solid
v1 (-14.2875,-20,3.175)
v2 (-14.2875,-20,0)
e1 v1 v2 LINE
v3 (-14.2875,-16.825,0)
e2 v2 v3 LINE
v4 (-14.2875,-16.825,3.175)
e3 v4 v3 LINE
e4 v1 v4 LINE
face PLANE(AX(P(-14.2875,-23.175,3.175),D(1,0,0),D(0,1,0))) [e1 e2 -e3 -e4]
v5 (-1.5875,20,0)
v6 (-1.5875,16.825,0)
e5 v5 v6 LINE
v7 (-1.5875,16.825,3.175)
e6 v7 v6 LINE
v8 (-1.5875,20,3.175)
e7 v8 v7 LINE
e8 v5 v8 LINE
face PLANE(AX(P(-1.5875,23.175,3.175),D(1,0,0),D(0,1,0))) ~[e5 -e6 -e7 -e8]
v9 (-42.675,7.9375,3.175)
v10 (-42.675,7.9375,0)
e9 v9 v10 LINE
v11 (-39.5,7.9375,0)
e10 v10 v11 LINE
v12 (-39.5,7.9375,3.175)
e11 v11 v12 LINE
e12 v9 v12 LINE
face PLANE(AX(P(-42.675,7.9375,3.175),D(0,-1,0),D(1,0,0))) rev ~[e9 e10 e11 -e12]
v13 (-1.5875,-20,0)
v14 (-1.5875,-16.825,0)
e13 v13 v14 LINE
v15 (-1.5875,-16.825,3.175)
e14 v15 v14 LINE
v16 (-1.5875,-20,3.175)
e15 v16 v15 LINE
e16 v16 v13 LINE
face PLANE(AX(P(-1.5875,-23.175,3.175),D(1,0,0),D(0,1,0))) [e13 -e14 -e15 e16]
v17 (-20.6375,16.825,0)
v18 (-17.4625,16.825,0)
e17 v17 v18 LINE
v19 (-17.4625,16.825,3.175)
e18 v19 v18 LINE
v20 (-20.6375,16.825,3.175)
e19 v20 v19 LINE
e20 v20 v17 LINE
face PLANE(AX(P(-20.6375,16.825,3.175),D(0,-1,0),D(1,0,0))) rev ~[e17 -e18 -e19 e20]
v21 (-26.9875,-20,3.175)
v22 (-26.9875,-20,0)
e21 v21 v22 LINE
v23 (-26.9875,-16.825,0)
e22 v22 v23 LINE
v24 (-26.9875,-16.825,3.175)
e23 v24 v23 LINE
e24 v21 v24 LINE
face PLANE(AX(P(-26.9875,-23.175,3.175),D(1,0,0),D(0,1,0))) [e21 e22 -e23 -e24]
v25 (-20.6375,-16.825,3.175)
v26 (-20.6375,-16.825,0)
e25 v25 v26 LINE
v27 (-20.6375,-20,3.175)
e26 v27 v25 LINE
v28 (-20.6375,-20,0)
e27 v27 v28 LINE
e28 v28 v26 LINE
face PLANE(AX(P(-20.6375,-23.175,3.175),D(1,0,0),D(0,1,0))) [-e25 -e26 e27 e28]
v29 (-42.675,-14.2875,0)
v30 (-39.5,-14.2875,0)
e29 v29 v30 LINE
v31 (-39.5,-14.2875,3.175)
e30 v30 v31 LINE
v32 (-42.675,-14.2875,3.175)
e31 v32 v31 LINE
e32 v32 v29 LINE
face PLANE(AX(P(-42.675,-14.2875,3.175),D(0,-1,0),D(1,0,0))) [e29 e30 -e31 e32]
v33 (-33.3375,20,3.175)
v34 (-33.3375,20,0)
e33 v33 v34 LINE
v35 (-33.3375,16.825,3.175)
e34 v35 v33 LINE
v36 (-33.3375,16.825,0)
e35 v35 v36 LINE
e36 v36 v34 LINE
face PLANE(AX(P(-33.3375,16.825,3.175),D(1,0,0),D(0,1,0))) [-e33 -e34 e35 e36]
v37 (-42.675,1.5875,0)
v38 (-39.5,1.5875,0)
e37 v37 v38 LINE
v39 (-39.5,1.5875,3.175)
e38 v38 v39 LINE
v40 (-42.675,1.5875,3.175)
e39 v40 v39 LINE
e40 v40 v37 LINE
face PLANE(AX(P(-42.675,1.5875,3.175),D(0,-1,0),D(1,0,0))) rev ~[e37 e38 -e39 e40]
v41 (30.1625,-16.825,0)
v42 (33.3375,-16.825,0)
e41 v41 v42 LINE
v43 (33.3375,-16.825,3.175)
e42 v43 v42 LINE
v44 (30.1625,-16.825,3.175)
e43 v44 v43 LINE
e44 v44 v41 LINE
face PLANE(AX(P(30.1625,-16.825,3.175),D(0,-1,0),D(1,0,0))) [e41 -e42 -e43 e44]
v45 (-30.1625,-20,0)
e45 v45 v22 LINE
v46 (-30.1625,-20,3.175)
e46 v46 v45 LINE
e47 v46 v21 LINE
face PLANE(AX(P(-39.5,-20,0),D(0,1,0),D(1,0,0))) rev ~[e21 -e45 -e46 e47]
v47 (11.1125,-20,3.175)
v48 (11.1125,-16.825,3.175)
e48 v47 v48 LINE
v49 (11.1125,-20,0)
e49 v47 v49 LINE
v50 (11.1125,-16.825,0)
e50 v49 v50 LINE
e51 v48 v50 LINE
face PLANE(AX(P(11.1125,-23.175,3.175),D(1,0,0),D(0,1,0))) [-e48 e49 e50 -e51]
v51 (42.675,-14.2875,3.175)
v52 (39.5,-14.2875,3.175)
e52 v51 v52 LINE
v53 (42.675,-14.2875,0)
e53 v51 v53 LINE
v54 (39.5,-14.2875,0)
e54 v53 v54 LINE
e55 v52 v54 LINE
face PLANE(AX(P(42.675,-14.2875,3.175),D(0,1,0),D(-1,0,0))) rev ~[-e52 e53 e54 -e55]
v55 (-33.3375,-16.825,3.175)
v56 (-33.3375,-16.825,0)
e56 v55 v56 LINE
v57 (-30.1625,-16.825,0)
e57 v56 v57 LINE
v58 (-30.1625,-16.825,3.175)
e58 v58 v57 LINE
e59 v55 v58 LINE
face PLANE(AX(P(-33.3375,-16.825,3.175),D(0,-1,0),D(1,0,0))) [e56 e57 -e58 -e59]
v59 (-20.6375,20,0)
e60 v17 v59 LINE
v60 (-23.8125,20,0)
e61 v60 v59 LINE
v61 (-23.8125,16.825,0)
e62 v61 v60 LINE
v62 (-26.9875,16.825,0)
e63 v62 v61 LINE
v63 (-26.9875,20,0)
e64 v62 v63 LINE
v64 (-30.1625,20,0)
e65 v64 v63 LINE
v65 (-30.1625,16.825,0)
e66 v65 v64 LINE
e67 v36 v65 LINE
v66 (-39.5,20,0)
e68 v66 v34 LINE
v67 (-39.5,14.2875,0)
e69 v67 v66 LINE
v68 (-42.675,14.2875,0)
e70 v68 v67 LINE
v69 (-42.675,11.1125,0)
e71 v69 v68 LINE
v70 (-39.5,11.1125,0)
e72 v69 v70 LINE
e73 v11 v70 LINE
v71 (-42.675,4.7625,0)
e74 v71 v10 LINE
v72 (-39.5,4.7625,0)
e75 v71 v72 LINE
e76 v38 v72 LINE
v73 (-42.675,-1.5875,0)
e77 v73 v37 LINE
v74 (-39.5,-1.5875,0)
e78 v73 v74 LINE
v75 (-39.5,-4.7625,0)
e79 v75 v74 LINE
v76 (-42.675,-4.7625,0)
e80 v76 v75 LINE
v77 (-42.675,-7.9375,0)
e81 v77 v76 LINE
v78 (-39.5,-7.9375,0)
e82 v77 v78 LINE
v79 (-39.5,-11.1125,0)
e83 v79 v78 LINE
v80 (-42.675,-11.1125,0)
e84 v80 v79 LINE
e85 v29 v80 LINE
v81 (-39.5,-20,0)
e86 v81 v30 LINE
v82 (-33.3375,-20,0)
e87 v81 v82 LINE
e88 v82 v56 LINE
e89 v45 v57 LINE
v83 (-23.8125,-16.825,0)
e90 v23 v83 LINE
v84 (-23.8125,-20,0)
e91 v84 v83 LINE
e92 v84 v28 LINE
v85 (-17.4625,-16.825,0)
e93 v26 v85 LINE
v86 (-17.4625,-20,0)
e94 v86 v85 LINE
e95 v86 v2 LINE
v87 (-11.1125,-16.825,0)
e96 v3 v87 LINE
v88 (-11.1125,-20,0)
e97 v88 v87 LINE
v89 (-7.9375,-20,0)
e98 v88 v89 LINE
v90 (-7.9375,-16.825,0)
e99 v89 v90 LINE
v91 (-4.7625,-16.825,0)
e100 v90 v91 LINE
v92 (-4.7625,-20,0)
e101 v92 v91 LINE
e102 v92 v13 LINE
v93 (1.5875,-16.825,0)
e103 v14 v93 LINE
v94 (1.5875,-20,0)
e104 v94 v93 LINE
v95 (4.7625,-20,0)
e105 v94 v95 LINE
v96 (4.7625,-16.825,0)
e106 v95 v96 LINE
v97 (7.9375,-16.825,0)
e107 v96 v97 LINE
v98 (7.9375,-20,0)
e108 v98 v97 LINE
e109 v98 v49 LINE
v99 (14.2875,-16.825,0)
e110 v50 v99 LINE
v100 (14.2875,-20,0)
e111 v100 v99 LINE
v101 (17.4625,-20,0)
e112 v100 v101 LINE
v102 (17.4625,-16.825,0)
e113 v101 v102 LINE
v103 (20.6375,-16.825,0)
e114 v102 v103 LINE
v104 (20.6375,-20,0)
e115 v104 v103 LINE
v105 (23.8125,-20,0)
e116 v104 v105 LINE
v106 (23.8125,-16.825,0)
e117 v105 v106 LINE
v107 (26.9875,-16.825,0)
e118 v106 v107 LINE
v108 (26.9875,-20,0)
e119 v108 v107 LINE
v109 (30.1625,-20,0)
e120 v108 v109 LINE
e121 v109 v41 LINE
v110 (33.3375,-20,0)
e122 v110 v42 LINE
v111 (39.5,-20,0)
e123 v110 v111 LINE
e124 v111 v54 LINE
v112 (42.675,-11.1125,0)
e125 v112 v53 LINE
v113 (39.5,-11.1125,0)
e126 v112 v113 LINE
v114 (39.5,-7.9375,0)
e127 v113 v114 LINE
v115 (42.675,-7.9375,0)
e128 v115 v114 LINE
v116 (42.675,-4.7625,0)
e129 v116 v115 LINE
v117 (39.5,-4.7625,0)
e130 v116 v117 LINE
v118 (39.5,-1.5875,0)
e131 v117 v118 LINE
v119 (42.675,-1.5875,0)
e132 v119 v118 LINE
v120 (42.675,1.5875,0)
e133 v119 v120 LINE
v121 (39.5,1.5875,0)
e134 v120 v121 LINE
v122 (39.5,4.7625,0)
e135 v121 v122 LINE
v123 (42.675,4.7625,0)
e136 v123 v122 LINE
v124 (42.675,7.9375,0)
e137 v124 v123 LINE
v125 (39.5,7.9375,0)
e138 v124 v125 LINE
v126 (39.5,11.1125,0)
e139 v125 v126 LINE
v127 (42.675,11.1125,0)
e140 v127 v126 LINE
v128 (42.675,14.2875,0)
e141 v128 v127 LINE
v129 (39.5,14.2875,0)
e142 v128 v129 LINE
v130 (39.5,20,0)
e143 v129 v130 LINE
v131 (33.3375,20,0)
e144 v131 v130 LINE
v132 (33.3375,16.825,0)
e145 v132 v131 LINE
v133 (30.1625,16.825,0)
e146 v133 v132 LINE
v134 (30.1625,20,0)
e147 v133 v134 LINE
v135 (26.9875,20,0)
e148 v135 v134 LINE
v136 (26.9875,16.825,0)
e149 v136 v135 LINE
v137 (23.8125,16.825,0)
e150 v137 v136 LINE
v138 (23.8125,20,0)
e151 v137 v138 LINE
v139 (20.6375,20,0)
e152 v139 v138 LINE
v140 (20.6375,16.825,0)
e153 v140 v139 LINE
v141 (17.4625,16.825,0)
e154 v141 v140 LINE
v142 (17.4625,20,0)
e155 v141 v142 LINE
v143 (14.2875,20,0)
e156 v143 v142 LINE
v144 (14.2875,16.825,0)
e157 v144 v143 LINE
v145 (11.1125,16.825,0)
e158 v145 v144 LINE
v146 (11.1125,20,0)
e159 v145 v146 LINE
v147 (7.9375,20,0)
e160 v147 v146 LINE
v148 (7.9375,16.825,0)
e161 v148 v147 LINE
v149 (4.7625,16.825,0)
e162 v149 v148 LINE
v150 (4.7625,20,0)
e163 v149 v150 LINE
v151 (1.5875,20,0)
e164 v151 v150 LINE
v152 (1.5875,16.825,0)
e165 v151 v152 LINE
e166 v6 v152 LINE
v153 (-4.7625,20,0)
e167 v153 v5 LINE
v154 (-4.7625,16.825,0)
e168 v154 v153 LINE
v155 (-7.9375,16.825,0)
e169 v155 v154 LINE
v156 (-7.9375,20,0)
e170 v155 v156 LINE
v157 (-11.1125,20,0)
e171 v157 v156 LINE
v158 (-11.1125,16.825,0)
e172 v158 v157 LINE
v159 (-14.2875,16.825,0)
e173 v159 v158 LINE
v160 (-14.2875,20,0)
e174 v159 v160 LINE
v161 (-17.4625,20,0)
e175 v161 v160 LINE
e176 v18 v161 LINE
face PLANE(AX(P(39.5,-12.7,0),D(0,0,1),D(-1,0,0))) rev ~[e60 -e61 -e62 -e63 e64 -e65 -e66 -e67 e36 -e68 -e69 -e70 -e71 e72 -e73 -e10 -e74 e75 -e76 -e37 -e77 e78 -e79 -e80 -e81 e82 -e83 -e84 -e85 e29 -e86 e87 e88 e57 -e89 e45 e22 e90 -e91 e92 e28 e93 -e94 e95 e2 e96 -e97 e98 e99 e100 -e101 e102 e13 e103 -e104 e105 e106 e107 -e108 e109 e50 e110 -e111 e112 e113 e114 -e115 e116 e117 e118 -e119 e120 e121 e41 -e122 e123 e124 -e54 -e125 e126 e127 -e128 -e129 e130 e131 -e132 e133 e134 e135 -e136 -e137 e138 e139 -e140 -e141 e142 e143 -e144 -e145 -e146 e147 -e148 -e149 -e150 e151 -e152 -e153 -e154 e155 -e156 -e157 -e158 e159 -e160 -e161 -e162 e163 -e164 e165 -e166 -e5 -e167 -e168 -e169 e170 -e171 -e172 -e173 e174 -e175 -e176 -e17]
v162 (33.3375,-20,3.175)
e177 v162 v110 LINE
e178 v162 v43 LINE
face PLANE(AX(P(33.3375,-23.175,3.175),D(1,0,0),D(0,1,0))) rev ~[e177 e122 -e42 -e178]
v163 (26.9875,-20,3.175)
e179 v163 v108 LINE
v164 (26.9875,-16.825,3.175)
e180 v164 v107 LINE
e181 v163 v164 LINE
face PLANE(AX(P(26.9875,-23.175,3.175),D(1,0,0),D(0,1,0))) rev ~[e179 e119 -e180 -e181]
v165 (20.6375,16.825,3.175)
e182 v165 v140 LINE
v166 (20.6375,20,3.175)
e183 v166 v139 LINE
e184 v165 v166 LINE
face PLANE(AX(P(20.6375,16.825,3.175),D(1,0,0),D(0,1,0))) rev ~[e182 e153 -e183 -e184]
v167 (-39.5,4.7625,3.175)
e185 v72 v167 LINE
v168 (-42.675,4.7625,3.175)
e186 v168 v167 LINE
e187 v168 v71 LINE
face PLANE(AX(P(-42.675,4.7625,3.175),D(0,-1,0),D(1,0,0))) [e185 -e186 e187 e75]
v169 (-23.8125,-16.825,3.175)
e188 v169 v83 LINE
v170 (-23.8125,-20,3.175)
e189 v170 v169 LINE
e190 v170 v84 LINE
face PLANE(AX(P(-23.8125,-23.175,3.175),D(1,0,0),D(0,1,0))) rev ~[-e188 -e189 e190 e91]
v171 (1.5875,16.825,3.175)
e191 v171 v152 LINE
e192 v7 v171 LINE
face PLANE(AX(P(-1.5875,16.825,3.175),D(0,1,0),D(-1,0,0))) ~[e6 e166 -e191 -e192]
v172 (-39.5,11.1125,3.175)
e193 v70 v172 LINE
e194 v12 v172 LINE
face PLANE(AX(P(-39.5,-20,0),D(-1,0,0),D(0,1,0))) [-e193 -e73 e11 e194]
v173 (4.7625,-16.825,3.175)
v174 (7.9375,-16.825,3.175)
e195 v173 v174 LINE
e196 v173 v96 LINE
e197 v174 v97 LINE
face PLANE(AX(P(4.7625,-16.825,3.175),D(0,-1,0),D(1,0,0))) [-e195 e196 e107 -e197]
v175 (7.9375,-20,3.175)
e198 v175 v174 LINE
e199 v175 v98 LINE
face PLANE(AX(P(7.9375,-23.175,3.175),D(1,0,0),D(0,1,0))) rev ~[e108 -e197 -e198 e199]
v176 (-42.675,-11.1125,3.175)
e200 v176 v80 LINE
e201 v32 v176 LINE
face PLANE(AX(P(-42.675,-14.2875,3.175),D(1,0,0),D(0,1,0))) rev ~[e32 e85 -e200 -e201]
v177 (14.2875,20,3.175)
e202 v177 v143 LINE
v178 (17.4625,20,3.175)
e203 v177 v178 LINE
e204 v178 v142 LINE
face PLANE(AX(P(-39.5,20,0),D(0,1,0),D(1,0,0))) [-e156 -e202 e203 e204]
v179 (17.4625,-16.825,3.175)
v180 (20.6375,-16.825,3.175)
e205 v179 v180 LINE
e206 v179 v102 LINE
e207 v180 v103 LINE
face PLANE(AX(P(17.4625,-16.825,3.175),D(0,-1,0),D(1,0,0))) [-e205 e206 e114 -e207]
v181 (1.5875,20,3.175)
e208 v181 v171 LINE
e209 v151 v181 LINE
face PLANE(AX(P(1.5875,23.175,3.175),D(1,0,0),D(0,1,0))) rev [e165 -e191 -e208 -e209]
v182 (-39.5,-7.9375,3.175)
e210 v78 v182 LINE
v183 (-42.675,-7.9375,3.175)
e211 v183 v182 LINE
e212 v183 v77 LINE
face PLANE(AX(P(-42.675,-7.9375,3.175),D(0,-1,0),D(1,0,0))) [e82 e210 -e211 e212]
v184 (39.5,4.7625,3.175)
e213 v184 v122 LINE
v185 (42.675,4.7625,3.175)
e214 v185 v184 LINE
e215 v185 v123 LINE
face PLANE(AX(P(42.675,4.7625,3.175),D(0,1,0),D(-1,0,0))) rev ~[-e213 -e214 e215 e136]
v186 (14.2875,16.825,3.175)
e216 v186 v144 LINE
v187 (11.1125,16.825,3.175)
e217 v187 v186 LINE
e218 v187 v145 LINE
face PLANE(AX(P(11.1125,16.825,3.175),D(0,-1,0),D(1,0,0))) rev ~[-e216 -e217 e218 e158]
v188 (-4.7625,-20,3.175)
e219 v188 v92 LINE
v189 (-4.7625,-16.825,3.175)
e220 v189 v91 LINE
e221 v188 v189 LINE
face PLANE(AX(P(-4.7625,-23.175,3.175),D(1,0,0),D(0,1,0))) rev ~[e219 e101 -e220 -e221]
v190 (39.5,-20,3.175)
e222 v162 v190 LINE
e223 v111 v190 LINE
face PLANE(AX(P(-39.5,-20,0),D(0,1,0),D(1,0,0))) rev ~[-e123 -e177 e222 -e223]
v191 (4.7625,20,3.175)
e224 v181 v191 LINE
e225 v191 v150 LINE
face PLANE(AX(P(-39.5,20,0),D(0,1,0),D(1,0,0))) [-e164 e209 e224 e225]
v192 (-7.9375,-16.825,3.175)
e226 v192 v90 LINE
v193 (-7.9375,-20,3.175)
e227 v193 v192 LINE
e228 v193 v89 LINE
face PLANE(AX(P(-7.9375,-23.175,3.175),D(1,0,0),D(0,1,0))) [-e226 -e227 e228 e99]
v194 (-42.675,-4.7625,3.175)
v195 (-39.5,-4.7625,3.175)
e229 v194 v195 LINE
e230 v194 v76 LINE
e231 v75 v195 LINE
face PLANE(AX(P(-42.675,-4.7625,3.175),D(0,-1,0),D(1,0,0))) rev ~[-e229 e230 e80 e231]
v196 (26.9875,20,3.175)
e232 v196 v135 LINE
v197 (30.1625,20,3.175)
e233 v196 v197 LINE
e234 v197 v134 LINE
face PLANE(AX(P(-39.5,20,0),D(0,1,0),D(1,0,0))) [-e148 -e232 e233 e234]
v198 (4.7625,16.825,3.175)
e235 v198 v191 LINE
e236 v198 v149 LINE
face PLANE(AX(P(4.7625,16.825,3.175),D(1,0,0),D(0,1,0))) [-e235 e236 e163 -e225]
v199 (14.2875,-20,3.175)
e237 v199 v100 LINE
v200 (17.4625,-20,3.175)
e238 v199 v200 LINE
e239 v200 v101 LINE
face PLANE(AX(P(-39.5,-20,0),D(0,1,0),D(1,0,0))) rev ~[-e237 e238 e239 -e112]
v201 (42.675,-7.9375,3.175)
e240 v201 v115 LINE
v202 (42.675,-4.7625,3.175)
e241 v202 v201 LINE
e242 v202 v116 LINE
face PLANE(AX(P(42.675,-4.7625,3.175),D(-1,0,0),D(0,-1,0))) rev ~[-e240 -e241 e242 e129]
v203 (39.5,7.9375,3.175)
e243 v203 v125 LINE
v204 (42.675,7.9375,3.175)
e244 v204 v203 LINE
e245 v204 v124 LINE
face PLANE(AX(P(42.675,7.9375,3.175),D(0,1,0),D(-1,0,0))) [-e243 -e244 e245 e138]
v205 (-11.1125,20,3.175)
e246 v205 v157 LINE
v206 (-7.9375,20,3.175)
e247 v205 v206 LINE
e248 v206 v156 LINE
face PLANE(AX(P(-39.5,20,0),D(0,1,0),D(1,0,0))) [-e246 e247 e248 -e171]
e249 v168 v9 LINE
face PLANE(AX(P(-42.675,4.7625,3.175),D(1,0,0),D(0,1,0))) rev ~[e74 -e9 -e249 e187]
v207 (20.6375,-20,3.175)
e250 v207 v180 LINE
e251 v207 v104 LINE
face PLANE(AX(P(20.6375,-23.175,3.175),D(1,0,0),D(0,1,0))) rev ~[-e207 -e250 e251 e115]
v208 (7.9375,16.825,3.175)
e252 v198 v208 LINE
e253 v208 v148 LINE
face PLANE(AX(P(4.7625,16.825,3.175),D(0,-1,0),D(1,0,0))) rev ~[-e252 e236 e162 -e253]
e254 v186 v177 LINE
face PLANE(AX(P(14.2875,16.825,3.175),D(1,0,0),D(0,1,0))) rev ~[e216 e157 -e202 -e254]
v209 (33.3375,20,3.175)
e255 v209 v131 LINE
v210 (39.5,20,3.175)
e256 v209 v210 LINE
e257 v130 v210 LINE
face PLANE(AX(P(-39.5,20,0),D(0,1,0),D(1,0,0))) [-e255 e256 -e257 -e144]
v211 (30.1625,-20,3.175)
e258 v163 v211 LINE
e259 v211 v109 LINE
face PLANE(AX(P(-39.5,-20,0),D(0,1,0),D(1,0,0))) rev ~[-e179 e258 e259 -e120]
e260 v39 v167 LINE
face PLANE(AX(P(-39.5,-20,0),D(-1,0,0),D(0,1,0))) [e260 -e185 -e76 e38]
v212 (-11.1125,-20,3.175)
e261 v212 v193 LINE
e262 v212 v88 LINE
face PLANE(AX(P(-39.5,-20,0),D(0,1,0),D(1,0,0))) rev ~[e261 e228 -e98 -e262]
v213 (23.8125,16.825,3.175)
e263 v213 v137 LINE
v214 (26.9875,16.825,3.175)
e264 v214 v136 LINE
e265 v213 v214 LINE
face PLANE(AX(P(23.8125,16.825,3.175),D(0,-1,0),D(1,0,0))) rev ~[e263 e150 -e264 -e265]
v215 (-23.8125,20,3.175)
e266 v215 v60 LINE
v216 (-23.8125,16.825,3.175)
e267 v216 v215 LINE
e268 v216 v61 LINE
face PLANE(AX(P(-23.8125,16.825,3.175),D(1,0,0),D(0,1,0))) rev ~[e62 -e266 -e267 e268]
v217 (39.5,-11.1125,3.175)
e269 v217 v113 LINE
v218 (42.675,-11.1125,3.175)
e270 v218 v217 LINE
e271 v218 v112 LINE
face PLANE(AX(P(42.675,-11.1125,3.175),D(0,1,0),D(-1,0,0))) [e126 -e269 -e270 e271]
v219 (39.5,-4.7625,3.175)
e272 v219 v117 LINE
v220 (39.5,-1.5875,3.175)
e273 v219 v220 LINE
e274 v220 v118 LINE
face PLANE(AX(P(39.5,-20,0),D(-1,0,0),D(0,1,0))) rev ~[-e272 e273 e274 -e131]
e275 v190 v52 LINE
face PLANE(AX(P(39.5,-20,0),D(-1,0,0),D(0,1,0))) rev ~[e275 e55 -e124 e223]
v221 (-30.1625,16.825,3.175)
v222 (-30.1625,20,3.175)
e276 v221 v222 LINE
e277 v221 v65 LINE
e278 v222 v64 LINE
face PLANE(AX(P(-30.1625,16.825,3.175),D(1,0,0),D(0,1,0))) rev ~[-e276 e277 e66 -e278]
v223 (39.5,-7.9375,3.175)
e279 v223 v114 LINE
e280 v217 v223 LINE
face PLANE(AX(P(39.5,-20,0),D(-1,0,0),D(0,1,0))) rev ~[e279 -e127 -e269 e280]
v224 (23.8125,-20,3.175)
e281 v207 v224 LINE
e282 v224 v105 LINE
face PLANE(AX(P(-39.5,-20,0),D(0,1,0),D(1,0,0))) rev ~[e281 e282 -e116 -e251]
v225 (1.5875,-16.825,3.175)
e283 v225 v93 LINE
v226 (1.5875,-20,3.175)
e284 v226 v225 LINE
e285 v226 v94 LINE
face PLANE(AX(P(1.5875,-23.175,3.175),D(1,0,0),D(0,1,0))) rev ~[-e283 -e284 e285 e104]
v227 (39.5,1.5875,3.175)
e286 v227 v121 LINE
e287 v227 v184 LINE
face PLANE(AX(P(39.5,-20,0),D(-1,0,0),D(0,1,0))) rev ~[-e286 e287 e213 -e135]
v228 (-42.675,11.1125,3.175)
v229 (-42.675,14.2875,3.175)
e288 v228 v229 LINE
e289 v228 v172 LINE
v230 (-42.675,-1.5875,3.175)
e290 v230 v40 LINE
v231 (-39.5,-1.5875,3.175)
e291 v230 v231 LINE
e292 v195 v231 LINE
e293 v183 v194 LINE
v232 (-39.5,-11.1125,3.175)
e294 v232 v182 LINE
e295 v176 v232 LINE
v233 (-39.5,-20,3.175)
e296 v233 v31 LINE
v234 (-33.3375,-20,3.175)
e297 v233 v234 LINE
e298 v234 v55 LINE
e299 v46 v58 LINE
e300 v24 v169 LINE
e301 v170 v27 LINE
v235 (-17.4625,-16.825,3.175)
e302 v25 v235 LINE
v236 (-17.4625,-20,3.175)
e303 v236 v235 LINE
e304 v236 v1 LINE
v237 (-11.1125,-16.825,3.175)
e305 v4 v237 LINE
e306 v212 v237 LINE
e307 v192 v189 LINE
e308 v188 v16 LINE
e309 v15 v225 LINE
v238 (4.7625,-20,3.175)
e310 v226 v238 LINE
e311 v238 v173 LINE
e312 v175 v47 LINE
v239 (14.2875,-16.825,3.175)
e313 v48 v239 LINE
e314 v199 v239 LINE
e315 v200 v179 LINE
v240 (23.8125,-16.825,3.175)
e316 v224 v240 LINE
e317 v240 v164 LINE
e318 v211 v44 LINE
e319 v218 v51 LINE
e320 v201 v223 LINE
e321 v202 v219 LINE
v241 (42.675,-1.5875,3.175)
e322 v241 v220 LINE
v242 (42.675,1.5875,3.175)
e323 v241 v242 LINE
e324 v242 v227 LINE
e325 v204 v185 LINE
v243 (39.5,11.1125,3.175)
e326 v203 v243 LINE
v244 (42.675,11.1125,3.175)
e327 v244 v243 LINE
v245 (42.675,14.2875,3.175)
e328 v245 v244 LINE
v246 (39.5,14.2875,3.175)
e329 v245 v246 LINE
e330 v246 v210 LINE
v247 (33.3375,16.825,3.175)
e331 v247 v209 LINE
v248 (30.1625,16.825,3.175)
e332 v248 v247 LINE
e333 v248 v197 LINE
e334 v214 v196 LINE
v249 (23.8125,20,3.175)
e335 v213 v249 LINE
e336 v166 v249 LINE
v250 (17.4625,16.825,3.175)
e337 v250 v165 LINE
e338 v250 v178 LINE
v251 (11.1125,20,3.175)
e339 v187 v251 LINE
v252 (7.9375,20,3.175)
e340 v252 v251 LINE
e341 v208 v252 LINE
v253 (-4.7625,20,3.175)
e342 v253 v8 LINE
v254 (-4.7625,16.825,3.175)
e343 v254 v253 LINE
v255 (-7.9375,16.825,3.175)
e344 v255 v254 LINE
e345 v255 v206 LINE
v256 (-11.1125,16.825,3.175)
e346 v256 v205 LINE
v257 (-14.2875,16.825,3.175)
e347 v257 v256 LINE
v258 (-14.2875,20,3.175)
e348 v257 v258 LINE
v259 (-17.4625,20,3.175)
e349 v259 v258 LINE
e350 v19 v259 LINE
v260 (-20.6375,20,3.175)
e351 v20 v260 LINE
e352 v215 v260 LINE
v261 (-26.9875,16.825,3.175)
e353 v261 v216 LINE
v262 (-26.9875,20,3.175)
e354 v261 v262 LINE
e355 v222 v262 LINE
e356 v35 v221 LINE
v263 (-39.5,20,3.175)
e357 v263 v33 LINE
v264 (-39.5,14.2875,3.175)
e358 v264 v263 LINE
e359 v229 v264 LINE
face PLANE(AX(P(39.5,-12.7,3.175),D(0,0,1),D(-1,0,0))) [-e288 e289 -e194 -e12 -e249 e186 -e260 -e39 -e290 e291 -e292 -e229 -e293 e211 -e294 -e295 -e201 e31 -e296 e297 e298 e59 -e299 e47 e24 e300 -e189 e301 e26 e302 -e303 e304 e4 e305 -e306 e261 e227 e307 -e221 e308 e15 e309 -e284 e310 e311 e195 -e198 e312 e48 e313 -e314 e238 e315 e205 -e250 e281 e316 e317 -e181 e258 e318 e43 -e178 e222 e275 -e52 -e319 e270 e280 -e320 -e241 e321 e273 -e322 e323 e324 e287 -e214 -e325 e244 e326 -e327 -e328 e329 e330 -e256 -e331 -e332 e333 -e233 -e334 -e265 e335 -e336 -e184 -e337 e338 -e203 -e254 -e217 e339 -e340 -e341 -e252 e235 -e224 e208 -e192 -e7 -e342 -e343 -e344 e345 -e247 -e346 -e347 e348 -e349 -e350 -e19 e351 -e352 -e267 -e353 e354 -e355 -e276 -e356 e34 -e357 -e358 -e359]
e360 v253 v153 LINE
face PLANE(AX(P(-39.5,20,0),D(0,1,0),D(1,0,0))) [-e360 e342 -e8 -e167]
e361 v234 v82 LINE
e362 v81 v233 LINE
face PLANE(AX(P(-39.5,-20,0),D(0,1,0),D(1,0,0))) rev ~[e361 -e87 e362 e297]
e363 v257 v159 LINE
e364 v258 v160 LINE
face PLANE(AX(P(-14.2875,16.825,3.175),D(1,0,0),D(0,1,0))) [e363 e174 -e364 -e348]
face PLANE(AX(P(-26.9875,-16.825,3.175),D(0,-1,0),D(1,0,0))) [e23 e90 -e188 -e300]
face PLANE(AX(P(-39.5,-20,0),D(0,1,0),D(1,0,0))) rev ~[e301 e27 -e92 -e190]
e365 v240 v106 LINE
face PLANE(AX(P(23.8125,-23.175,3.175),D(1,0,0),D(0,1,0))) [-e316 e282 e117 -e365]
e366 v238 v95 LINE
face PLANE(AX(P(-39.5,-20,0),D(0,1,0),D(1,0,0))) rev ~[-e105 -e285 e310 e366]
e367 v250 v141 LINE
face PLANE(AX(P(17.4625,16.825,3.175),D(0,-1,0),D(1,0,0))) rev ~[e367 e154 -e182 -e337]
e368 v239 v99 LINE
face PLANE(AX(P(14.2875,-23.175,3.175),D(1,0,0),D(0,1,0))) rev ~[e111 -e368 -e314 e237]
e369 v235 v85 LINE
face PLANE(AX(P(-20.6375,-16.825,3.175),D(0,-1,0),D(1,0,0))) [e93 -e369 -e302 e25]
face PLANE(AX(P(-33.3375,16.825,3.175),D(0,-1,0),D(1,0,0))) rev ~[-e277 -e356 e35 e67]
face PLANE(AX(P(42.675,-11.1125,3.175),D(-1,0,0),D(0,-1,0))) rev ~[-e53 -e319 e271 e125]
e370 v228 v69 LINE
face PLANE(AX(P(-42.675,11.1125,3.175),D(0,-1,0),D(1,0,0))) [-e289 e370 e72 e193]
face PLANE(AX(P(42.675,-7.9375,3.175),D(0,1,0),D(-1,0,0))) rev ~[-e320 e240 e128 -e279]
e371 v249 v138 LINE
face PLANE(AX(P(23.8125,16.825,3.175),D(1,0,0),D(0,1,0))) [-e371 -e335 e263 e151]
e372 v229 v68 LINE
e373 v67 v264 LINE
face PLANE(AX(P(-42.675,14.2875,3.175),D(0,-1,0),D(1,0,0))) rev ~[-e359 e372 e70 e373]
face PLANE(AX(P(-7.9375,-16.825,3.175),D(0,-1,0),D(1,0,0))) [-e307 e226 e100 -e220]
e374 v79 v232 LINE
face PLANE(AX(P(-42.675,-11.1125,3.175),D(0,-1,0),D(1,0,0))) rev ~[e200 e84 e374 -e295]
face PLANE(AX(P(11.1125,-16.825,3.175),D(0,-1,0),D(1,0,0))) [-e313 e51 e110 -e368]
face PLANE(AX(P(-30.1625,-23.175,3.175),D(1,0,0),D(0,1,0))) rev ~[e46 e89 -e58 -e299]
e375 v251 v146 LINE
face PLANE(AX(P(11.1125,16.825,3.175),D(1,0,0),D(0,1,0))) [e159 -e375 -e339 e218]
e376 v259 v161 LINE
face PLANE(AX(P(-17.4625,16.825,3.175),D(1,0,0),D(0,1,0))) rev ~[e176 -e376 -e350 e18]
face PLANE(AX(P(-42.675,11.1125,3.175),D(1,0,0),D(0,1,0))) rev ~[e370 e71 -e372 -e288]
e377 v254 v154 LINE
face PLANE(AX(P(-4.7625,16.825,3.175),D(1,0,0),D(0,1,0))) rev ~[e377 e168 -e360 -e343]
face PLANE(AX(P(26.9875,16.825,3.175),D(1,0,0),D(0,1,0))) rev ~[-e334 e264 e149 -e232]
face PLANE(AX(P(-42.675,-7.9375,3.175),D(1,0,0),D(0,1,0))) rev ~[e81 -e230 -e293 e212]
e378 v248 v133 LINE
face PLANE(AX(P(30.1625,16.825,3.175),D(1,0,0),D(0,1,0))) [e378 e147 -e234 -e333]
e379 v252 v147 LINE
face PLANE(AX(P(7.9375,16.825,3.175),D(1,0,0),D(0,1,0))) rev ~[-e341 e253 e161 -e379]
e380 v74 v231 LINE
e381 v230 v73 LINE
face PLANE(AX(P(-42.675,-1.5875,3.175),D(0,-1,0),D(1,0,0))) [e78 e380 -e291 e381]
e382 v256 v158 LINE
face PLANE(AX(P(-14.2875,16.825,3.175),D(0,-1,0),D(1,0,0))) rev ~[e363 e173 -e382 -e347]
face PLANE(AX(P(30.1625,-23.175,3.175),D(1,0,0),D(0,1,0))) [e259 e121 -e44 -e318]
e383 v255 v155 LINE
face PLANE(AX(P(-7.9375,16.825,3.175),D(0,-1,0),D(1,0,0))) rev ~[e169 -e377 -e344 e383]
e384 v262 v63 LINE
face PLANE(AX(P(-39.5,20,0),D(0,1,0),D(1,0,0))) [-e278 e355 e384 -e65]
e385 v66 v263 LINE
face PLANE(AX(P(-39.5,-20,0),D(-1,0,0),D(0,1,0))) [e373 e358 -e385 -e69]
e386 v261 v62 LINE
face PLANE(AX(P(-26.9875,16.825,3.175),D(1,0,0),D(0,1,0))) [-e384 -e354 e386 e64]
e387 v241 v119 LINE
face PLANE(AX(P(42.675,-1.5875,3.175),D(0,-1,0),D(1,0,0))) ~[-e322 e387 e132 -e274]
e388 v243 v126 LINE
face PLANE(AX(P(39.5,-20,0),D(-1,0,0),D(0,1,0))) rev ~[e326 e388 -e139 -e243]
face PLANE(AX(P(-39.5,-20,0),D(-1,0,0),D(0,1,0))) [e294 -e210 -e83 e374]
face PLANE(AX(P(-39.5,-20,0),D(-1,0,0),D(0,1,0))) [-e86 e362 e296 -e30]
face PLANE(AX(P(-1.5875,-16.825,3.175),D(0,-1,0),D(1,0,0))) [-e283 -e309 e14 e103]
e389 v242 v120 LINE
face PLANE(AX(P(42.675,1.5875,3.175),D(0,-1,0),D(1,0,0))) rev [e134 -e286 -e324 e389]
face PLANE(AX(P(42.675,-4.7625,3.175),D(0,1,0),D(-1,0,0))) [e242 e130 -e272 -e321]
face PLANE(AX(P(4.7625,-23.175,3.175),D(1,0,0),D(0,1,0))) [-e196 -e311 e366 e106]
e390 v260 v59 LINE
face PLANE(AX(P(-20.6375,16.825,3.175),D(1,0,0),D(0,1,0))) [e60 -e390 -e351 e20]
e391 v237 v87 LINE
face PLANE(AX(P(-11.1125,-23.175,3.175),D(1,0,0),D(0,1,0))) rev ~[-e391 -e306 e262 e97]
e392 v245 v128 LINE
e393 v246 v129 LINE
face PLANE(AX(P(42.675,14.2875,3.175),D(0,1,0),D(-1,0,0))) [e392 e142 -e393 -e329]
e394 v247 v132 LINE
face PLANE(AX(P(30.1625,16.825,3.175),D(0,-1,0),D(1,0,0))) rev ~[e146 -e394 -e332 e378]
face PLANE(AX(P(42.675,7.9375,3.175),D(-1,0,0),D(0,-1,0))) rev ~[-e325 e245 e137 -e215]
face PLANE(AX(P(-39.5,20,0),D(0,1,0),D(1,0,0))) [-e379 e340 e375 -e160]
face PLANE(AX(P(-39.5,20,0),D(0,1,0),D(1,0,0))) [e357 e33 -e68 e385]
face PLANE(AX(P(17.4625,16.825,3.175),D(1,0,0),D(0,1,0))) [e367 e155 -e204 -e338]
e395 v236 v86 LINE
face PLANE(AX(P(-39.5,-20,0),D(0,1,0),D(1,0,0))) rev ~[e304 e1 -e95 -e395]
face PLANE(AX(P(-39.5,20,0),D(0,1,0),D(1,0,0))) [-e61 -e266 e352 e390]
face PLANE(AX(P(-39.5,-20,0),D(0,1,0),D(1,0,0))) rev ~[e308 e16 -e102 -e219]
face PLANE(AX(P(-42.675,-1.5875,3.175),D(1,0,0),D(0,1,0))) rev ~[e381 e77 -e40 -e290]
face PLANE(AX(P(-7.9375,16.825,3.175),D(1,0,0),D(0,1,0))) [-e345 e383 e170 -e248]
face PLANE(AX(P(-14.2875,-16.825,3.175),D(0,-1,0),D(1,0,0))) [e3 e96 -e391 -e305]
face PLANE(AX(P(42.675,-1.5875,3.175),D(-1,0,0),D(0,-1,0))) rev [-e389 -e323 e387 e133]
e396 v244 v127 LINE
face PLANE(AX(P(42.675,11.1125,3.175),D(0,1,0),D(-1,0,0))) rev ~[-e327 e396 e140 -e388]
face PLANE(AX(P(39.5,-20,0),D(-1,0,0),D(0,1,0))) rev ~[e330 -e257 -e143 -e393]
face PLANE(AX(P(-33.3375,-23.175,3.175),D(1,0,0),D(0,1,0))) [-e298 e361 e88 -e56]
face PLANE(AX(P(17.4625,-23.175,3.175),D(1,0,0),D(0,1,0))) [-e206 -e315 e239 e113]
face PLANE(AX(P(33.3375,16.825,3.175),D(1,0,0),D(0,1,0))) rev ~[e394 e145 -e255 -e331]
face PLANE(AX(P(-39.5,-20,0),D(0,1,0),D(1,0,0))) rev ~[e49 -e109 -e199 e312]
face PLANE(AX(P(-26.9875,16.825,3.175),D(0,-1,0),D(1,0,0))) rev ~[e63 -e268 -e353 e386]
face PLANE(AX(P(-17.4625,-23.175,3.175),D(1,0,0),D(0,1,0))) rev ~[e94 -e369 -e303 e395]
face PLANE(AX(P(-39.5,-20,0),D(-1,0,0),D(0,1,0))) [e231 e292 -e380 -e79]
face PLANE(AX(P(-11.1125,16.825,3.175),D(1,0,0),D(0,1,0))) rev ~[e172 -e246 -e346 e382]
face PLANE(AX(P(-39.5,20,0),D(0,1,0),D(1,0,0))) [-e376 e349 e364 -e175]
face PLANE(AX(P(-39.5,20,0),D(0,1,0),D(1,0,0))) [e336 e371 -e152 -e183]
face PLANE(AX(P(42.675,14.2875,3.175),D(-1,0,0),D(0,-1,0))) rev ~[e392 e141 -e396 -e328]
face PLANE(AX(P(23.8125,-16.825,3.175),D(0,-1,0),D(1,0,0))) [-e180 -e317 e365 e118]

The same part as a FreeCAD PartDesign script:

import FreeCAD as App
import Part
import Sketcher

V = App.Vector


def add_polygon(sketch, points):
    """Adds a closed chain of lines whose ends are joined by coincident constraints."""
    first, n = sketch.GeometryCount, len(points)
    for a, b in zip(points, points[1:] + points[:1]):
        sketch.addGeometry(Part.LineSegment(App.Vector(*a, 0), App.Vector(*b, 0)), False)
    for i in range(n):
        sketch.addConstraint(Sketcher.Constraint("Coincident", first + i, 2, first + (i + 1) % n, 1))

doc = App.newDocument("Part")
body = doc.addObject("PartDesign::Body", "Body")

# Sketch on XY plane
sketch1 = body.newObject("Sketcher::SketchObject", "Sketch")
sketch1.AttachmentSupport = (doc.getObject("XY_Plane"), [""])
sketch1.MapMode = "FlatFace"
add_polygon(sketch1, [(-40, 20), (-40, -20), (40, -20), (40, 20)])  # lines 0-3
sketch1.addConstraint(Sketcher.Constraint("Vertical", 0))
sketch1.addConstraint(Sketcher.Constraint("Horizontal", 1))
sketch1.addConstraint(Sketcher.Constraint("Vertical", 2))
sketch1.addConstraint(Sketcher.Constraint("Horizontal", 3))
sketch1.addConstraint(Sketcher.Constraint("Symmetric", 0, 2, 2, 2, -1, 1))
sketch1.addConstraint(Sketcher.Constraint("DistanceX", 1, 1, 1, 2, 79.0))
sketch1.addConstraint(Sketcher.Constraint("DistanceY", 0, 2, 0, 1, 40.0))
pad1 = body.newObject("PartDesign::Pad", "Pad")
pad1.Profile = sketch1
pad1.Length = 3.175

# Sketch on XY plane
sketch2 = body.newObject("Sketcher::SketchObject", "Sketch001")
sketch2.AttachmentSupport = (doc.getObject("XY_Plane"), [""])
sketch2.MapMode = "FlatFace"
sketch2.AttachmentOffset = App.Placement(V(0, 0, 3.175), App.Rotation())
add_polygon(sketch2, [(-1.6, -16.8), (-1.6, -23.2), (1.6, -23.2), (1.6, -16.8)])  # lines 0-3
sketch2.addConstraint(Sketcher.Constraint("Vertical", 0))
sketch2.addConstraint(Sketcher.Constraint("Horizontal", 1))
sketch2.addConstraint(Sketcher.Constraint("Vertical", 2))
sketch2.addConstraint(Sketcher.Constraint("Horizontal", 3))
sketch2.addConstraint(Sketcher.Constraint("DistanceY", 0, 2, 0, 1, 6.35))
sketch2.addConstraint(Sketcher.Constraint("DistanceX", 1, 1, 1, 2, 3.175))
sketch2.addConstraint(Sketcher.Constraint("DistanceY", 0, 2, -1, 1, 23.175))
sketch2.addConstraint(Sketcher.Constraint("DistanceX", 0, 2, -1, 1, 1.5875))
pocket1 = body.newObject("PartDesign::Pocket", "Pocket")
pocket1.Profile = sketch2
pocket1.Length = 10
doc.recompute()

mirrored = body.newObject("PartDesign::Mirrored", "Mirrored")
mirrored.Originals = [pocket1]
mirrored.MirrorPlane = (doc.getObject("XZ_Plane"), [""])
body.Tip = mirrored
doc.recompute()

linearpattern = body.newObject("PartDesign::LinearPattern", "LinearPattern")
linearpattern.Originals = [pocket1]
linearpattern.Direction = (doc.getObject("X_Axis"), [""])
linearpattern.Mode = "offset"
linearpattern.Offset = 6.35
linearpattern.Occurrences = 6
body.Tip = linearpattern

# Sketch on XY plane
sketch3 = body.newObject("Sketcher::SketchObject", "Sketch002")
sketch3.AttachmentSupport = (doc.getObject("XY_Plane"), [""])
sketch3.MapMode = "FlatFace"
sketch3.AttachmentOffset = App.Placement(V(0, 0, 3.175), App.Rotation())
add_polygon(sketch3, [(4.8, 23.2), (4.8, 16.8), (7.9, 16.8), (7.9, 23.2)])  # lines 0-3
sketch3.addConstraint(Sketcher.Constraint("Vertical", 0))
sketch3.addConstraint(Sketcher.Constraint("Horizontal", 1))
sketch3.addConstraint(Sketcher.Constraint("Vertical", 2))
sketch3.addConstraint(Sketcher.Constraint("Horizontal", 3))
sketch3.addConstraint(Sketcher.Constraint("DistanceY", 0, 2, 0, 1, 6.35))
sketch3.addConstraint(Sketcher.Constraint("DistanceX", 1, 1, 1, 2, 3.175))
sketch3.addConstraint(Sketcher.Constraint("DistanceY", -1, 1, 0, 2, 16.825))
sketch3.addConstraint(Sketcher.Constraint("DistanceX", -1, 1, 0, 2, 4.7625))
pocket2 = body.newObject("PartDesign::Pocket", "Pocket001")
pocket2.Profile = sketch3
pocket2.Length = 10

# Sketch on XY plane
sketch4 = body.newObject("Sketcher::SketchObject", "Sketch003")
sketch4.AttachmentSupport = (doc.getObject("XY_Plane"), [""])
sketch4.MapMode = "FlatFace"
sketch4.AttachmentOffset = App.Placement(V(0, 0, 3.175), App.Rotation())
add_polygon(sketch4, [(11.1, 23.2), (11.1, 16.8), (14.3, 16.8), (14.3, 23.2)])  # lines 0-3
sketch4.addConstraint(Sketcher.Constraint("Vertical", 0))
sketch4.addConstraint(Sketcher.Constraint("Horizontal", 1))
sketch4.addConstraint(Sketcher.Constraint("Vertical", 2))
sketch4.addConstraint(Sketcher.Constraint("Horizontal", 3))
sketch4.addConstraint(Sketcher.Constraint("DistanceY", 0, 2, 0, 1, 6.35))
sketch4.addConstraint(Sketcher.Constraint("DistanceX", 1, 1, 1, 2, 3.175))
sketch4.addConstraint(Sketcher.Constraint("DistanceY", -1, 1, 0, 2, 16.825))
sketch4.addConstraint(Sketcher.Constraint("DistanceX", -1, 1, 0, 2, 11.1125))
pocket3 = body.newObject("PartDesign::Pocket", "Pocket002")
pocket3.Profile = sketch4
pocket3.Length = 10

# Sketch on XY plane
sketch5 = body.newObject("Sketcher::SketchObject", "Sketch004")
sketch5.AttachmentSupport = (doc.getObject("XY_Plane"), [""])
sketch5.MapMode = "FlatFace"
sketch5.AttachmentOffset = App.Placement(V(0, 0, 3.175), App.Rotation())
add_polygon(sketch5, [(17.5, 23.2), (17.5, 16.8), (20.6, 16.8), (20.6, 23.2)])  # lines 0-3
sketch5.addConstraint(Sketcher.Constraint("Vertical", 0))
sketch5.addConstraint(Sketcher.Constraint("Horizontal", 1))
sketch5.addConstraint(Sketcher.Constraint("Vertical", 2))
sketch5.addConstraint(Sketcher.Constraint("Horizontal", 3))
sketch5.addConstraint(Sketcher.Constraint("DistanceY", 0, 2, 0, 1, 6.35))
sketch5.addConstraint(Sketcher.Constraint("DistanceX", 1, 1, 1, 2, 3.175))
sketch5.addConstraint(Sketcher.Constraint("DistanceY", -1, 1, 0, 2, 16.825))
sketch5.addConstraint(Sketcher.Constraint("DistanceX", -1, 1, 0, 2, 17.4625))
pocket4 = body.newObject("PartDesign::Pocket", "Pocket003")
pocket4.Profile = sketch5
pocket4.Length = 10

# Sketch on XY plane
sketch6 = body.newObject("Sketcher::SketchObject", "Sketch005")
sketch6.AttachmentSupport = (doc.getObject("XY_Plane"), [""])
sketch6.MapMode = "FlatFace"
sketch6.AttachmentOffset = App.Placement(V(0, 0, 3.175), App.Rotation())
add_polygon(sketch6, [(23.8, 23.2), (23.8, 16.8), (27, 16.8), (27, 23.2)])  # lines 0-3
sketch6.addConstraint(Sketcher.Constraint("Vertical", 0))
sketch6.addConstraint(Sketcher.Constraint("Horizontal", 1))
sketch6.addConstraint(Sketcher.Constraint("Vertical", 2))
sketch6.addConstraint(Sketcher.Constraint("Horizontal", 3))
sketch6.addConstraint(Sketcher.Constraint("DistanceY", 0, 2, 0, 1, 6.35))
sketch6.addConstraint(Sketcher.Constraint("DistanceX", 1, 1, 1, 2, 3.175))
sketch6.addConstraint(Sketcher.Constraint("DistanceY", -1, 1, 0, 2, 16.825))
sketch6.addConstraint(Sketcher.Constraint("DistanceX", -1, 1, 0, 2, 23.8125))
pocket5 = body.newObject("PartDesign::Pocket", "Pocket004")
pocket5.Profile = sketch6
pocket5.Length = 10

# Sketch on XY plane
sketch7 = body.newObject("Sketcher::SketchObject", "Sketch006")
sketch7.AttachmentSupport = (doc.getObject("XY_Plane"), [""])
sketch7.MapMode = "FlatFace"
sketch7.AttachmentOffset = App.Placement(V(0, 0, 3.175), App.Rotation())
add_polygon(sketch7, [(30.2, 23.2), (30.2, 16.8), (33.3, 16.8), (33.3, 23.2)])  # lines 0-3
sketch7.addConstraint(Sketcher.Constraint("Vertical", 0))
sketch7.addConstraint(Sketcher.Constraint("Horizontal", 1))
sketch7.addConstraint(Sketcher.Constraint("Vertical", 2))
sketch7.addConstraint(Sketcher.Constraint("Horizontal", 3))
sketch7.addConstraint(Sketcher.Constraint("DistanceY", 0, 2, 0, 1, 6.35))
sketch7.addConstraint(Sketcher.Constraint("DistanceX", 1, 1, 1, 2, 3.175))
sketch7.addConstraint(Sketcher.Constraint("DistanceY", -1, 1, 0, 2, 16.825))
sketch7.addConstraint(Sketcher.Constraint("DistanceX", -1, 1, 0, 2, 30.1625))
pocket6 = body.newObject("PartDesign::Pocket", "Pocket005")
pocket6.Profile = sketch7
pocket6.Length = 10
doc.recompute()

linearpattern2 = body.newObject("PartDesign::LinearPattern", "LinearPattern001")
linearpattern2.Originals = [pocket1]
linearpattern2.Direction = (doc.getObject("X_Axis"), [""])
linearpattern2.Mode = "offset"
linearpattern2.Offset = 6.35
linearpattern2.Occurrences = 6
linearpattern2.Reversed = True
body.Tip = linearpattern2

# Sketch on XY plane
sketch8 = body.newObject("Sketcher::SketchObject", "Sketch007")
sketch8.AttachmentSupport = (doc.getObject("XY_Plane"), [""])
sketch8.MapMode = "FlatFace"
sketch8.AttachmentOffset = App.Placement(V(0, 0, 3.175), App.Rotation())
add_polygon(sketch8, [(-7.9, 23.2), (-7.9, 16.8), (-4.8, 16.8), (-4.8, 23.2)])  # lines 0-3
sketch8.addConstraint(Sketcher.Constraint("Vertical", 0))
sketch8.addConstraint(Sketcher.Constraint("Horizontal", 1))
sketch8.addConstraint(Sketcher.Constraint("Vertical", 2))
sketch8.addConstraint(Sketcher.Constraint("Horizontal", 3))
sketch8.addConstraint(Sketcher.Constraint("DistanceY", 0, 2, 0, 1, 6.35))
sketch8.addConstraint(Sketcher.Constraint("DistanceX", 1, 1, 1, 2, 3.175))
sketch8.addConstraint(Sketcher.Constraint("DistanceY", -1, 1, 0, 2, 16.825))
sketch8.addConstraint(Sketcher.Constraint("DistanceX", 0, 2, -1, 1, 7.9375))
pocket7 = body.newObject("PartDesign::Pocket", "Pocket006")
pocket7.Profile = sketch8
pocket7.Length = 10

# Sketch on XY plane
sketch9 = body.newObject("Sketcher::SketchObject", "Sketch008")
sketch9.AttachmentSupport = (doc.getObject("XY_Plane"), [""])
sketch9.MapMode = "FlatFace"
sketch9.AttachmentOffset = App.Placement(V(0, 0, 3.175), App.Rotation())
add_polygon(sketch9, [(-14.3, 23.2), (-14.3, 16.8), (-11.1, 16.8), (-11.1, 23.2)])  # lines 0-3
sketch9.addConstraint(Sketcher.Constraint("Vertical", 0))
sketch9.addConstraint(Sketcher.Constraint("Horizontal", 1))
sketch9.addConstraint(Sketcher.Constraint("Vertical", 2))
sketch9.addConstraint(Sketcher.Constraint("Horizontal", 3))
sketch9.addConstraint(Sketcher.Constraint("DistanceY", 0, 2, 0, 1, 6.35))
sketch9.addConstraint(Sketcher.Constraint("DistanceX", 1, 1, 1, 2, 3.175))
sketch9.addConstraint(Sketcher.Constraint("DistanceY", -1, 1, 0, 2, 16.825))
sketch9.addConstraint(Sketcher.Constraint("DistanceX", 0, 2, -1, 1, 14.2875))
pocket8 = body.newObject("PartDesign::Pocket", "Pocket007")
pocket8.Profile = sketch9
pocket8.Length = 10

# Sketch on XY plane
sketch10 = body.newObject("Sketcher::SketchObject", "Sketch009")
sketch10.AttachmentSupport = (doc.getObject("XY_Plane"), [""])
sketch10.MapMode = "FlatFace"
sketch10.AttachmentOffset = App.Placement(V(0, 0, 3.175), App.Rotation())
add_polygon(sketch10, [(-20.6, 23.2), (-20.6, 16.8), (-17.5, 16.8), (-17.5, 23.2)])  # lines 0-3
sketch10.addConstraint(Sketcher.Constraint("Vertical", 0))
sketch10.addConstraint(Sketcher.Constraint("Horizontal", 1))
sketch10.addConstraint(Sketcher.Constraint("Vertical", 2))
sketch10.addConstraint(Sketcher.Constraint("Horizontal", 3))
sketch10.addConstraint(Sketcher.Constraint("DistanceY", 0, 2, 0, 1, 6.35))
sketch10.addConstraint(Sketcher.Constraint("DistanceX", 1, 1, 1, 2, 3.175))
sketch10.addConstraint(Sketcher.Constraint("DistanceY", -1, 1, 0, 2, 16.825))
sketch10.addConstraint(Sketcher.Constraint("DistanceX", 0, 2, -1, 1, 20.6375))
pocket9 = body.newObject("PartDesign::Pocket", "Pocket008")
pocket9.Profile = sketch10
pocket9.Length = 10

# Sketch on XY plane
sketch11 = body.newObject("Sketcher::SketchObject", "Sketch010")
sketch11.AttachmentSupport = (doc.getObject("XY_Plane"), [""])
sketch11.MapMode = "FlatFace"
sketch11.AttachmentOffset = App.Placement(V(0, 0, 3.175), App.Rotation())
add_polygon(sketch11, [(-27, 23.2), (-27, 16.8), (-23.8, 16.8), (-23.8, 23.2)])  # lines 0-3
sketch11.addConstraint(Sketcher.Constraint("Vertical", 0))
sketch11.addConstraint(Sketcher.Constraint("Horizontal", 1))
sketch11.addConstraint(Sketcher.Constraint("Vertical", 2))
sketch11.addConstraint(Sketcher.Constraint("Horizontal", 3))
sketch11.addConstraint(Sketcher.Constraint("DistanceY", 0, 2, 0, 1, 6.35))
sketch11.addConstraint(Sketcher.Constraint("DistanceX", 1, 1, 1, 2, 3.175))
sketch11.addConstraint(Sketcher.Constraint("DistanceY", -1, 1, 0, 2, 16.825))
sketch11.addConstraint(Sketcher.Constraint("DistanceX", 0, 2, -1, 1, 26.9875))
pocket10 = body.newObject("PartDesign::Pocket", "Pocket009")
pocket10.Profile = sketch11
pocket10.Length = 10

# Sketch on XY plane
sketch12 = body.newObject("Sketcher::SketchObject", "Sketch011")
sketch12.AttachmentSupport = (doc.getObject("XY_Plane"), [""])
sketch12.MapMode = "FlatFace"
sketch12.AttachmentOffset = App.Placement(V(0, 0, 3.175), App.Rotation())
add_polygon(sketch12, [(-33.3, 23.2), (-33.3, 16.8), (-30.2, 16.8), (-30.2, 23.2)])  # lines 0-3
sketch12.addConstraint(Sketcher.Constraint("Vertical", 0))
sketch12.addConstraint(Sketcher.Constraint("Horizontal", 1))
sketch12.addConstraint(Sketcher.Constraint("Vertical", 2))
sketch12.addConstraint(Sketcher.Constraint("Horizontal", 3))
sketch12.addConstraint(Sketcher.Constraint("DistanceY", 0, 2, 0, 1, 6.35))
sketch12.addConstraint(Sketcher.Constraint("DistanceX", 1, 1, 1, 2, 3.175))
sketch12.addConstraint(Sketcher.Constraint("DistanceY", -1, 1, 0, 2, 16.825))
sketch12.addConstraint(Sketcher.Constraint("DistanceX", 0, 2, -1, 1, 33.3375))
pocket11 = body.newObject("PartDesign::Pocket", "Pocket010")
pocket11.Profile = sketch12
pocket11.Length = 10

# Sketch on XY plane
sketch13 = body.newObject("Sketcher::SketchObject", "Sketch012")
sketch13.AttachmentSupport = (doc.getObject("XY_Plane"), [""])
sketch13.MapMode = "FlatFace"
sketch13.AttachmentOffset = App.Placement(V(0, 0, 3.175), App.Rotation())
add_polygon(sketch13, [(-42.7, 1.6), (-42.7, -1.6), (-36.3, -1.6), (-36.3, 1.6)])  # lines 0-3
sketch13.addConstraint(Sketcher.Constraint("Vertical", 0))
sketch13.addConstraint(Sketcher.Constraint("Horizontal", 1))
sketch13.addConstraint(Sketcher.Constraint("Vertical", 2))
sketch13.addConstraint(Sketcher.Constraint("Horizontal", 3))
sketch13.addConstraint(Sketcher.Constraint("DistanceX", 1, 1, 1, 2, 6.35))
sketch13.addConstraint(Sketcher.Constraint("DistanceY", 0, 2, 0, 1, 3.175))
sketch13.addConstraint(Sketcher.Constraint("DistanceX", 0, 2, -1, 1, 42.675))
sketch13.addConstraint(Sketcher.Constraint("DistanceY", 0, 2, -1, 1, 1.5875))
pad2 = body.newObject("PartDesign::Pad", "Pad001")
pad2.Profile = sketch13
pad2.Length = 3.175
pad2.Reversed = True
doc.recompute()

linearpattern3 = body.newObject("PartDesign::LinearPattern", "LinearPattern002")
linearpattern3.Originals = [pad2]
linearpattern3.Direction = (doc.getObject("Y_Axis"), [""])
linearpattern3.Mode = "offset"
linearpattern3.Offset = 6.35
linearpattern3.Occurrences = 3
body.Tip = linearpattern3
doc.recompute()

linearpattern4 = body.newObject("PartDesign::LinearPattern", "LinearPattern003")
linearpattern4.Originals = [pad2]
linearpattern4.Direction = (doc.getObject("Y_Axis"), [""])
linearpattern4.Mode = "offset"
linearpattern4.Offset = 6.35
linearpattern4.Occurrences = 3
linearpattern4.Reversed = True
body.Tip = linearpattern4
doc.recompute()

mirrored2 = body.newObject("PartDesign::Mirrored", "Mirrored001")
mirrored2.Originals = [pad2]
mirrored2.MirrorPlane = (doc.getObject("YZ_Plane"), [""])
body.Tip = mirrored2

# Sketch on XY plane
sketch14 = body.newObject("Sketcher::SketchObject", "Sketch013")
sketch14.AttachmentSupport = (doc.getObject("XY_Plane"), [""])
sketch14.MapMode = "FlatFace"
sketch14.AttachmentOffset = App.Placement(V(0, 0, 3.175), App.Rotation())
add_polygon(sketch14, [(42.7, 4.8), (42.7, 7.9), (36.3, 7.9), (36.3, 4.8)])  # lines 0-3
sketch14.addConstraint(Sketcher.Constraint("Vertical", 0))
sketch14.addConstraint(Sketcher.Constraint("Horizontal", 1))
sketch14.addConstraint(Sketcher.Constraint("Vertical", 2))
sketch14.addConstraint(Sketcher.Constraint("Horizontal", 3))
sketch14.addConstraint(Sketcher.Constraint("DistanceX", 1, 2, 1, 1, 6.35))
sketch14.addConstraint(Sketcher.Constraint("DistanceY", 0, 1, 0, 2, 3.175))
sketch14.addConstraint(Sketcher.Constraint("DistanceX", -1, 1, 0, 2, 42.675))
sketch14.addConstraint(Sketcher.Constraint("DistanceY", -1, 1, 0, 2, 7.9375))
pad3 = body.newObject("PartDesign::Pad", "Pad002")
pad3.Profile = sketch14
pad3.Length = 3.175
pad3.Reversed = True

# Sketch on XY plane
sketch15 = body.newObject("Sketcher::SketchObject", "Sketch014")
sketch15.AttachmentSupport = (doc.getObject("XY_Plane"), [""])
sketch15.MapMode = "FlatFace"
sketch15.AttachmentOffset = App.Placement(V(0, 0, 3.175), App.Rotation())
add_polygon(sketch15, [(42.7, 11.1), (42.7, 14.3), (36.3, 14.3), (36.3, 11.1)])  # lines 0-3
sketch15.addConstraint(Sketcher.Constraint("Vertical", 0))
sketch15.addConstraint(Sketcher.Constraint("Horizontal", 1))
sketch15.addConstraint(Sketcher.Constraint("Vertical", 2))
sketch15.addConstraint(Sketcher.Constraint("Horizontal", 3))
sketch15.addConstraint(Sketcher.Constraint("DistanceX", 1, 2, 1, 1, 6.35))
sketch15.addConstraint(Sketcher.Constraint("DistanceY", 0, 1, 0, 2, 3.175))
sketch15.addConstraint(Sketcher.Constraint("DistanceX", -1, 1, 0, 2, 42.675))
sketch15.addConstraint(Sketcher.Constraint("DistanceY", -1, 1, 0, 2, 14.2875))
pad4 = body.newObject("PartDesign::Pad", "Pad003")
pad4.Profile = sketch15
pad4.Length = 3.175
pad4.Reversed = True

# Sketch on XY plane
sketch16 = body.newObject("Sketcher::SketchObject", "Sketch015")
sketch16.AttachmentSupport = (doc.getObject("XY_Plane"), [""])
sketch16.MapMode = "FlatFace"
sketch16.AttachmentOffset = App.Placement(V(0, 0, 3.175), App.Rotation())
add_polygon(sketch16, [(42.7, -7.9), (42.7, -4.8), (36.3, -4.8), (36.3, -7.9)])  # lines 0-3
sketch16.addConstraint(Sketcher.Constraint("Vertical", 0))
sketch16.addConstraint(Sketcher.Constraint("Horizontal", 1))
sketch16.addConstraint(Sketcher.Constraint("Vertical", 2))
sketch16.addConstraint(Sketcher.Constraint("Horizontal", 3))
sketch16.addConstraint(Sketcher.Constraint("DistanceX", 1, 2, 1, 1, 6.35))
sketch16.addConstraint(Sketcher.Constraint("DistanceY", 0, 1, 0, 2, 3.175))
sketch16.addConstraint(Sketcher.Constraint("DistanceX", -1, 1, 0, 2, 42.675))
sketch16.addConstraint(Sketcher.Constraint("DistanceY", 0, 2, -1, 1, 4.7625))
pad5 = body.newObject("PartDesign::Pad", "Pad004")
pad5.Profile = sketch16
pad5.Length = 3.175
pad5.Reversed = True

# Sketch on XY plane
sketch17 = body.newObject("Sketcher::SketchObject", "Sketch016")
sketch17.AttachmentSupport = (doc.getObject("XY_Plane"), [""])
sketch17.MapMode = "FlatFace"
sketch17.AttachmentOffset = App.Placement(V(0, 0, 3.175), App.Rotation())
add_polygon(sketch17, [(42.7, -14.3), (42.7, -11.1), (36.3, -11.1), (36.3, -14.3)])  # lines 0-3
sketch17.addConstraint(Sketcher.Constraint("Vertical", 0))
sketch17.addConstraint(Sketcher.Constraint("Horizontal", 1))
sketch17.addConstraint(Sketcher.Constraint("Vertical", 2))
sketch17.addConstraint(Sketcher.Constraint("Horizontal", 3))
sketch17.addConstraint(Sketcher.Constraint("DistanceX", 1, 2, 1, 1, 6.35))
sketch17.addConstraint(Sketcher.Constraint("DistanceY", 0, 1, 0, 2, 3.175))
sketch17.addConstraint(Sketcher.Constraint("DistanceX", -1, 1, 0, 2, 42.675))
sketch17.addConstraint(Sketcher.Constraint("DistanceY", 0, 2, -1, 1, 11.1125))
pad6 = body.newObject("PartDesign::Pad", "Pad005")
pad6.Profile = sketch17
pad6.Length = 3.175
pad6.Reversed = True

doc.recompute()
